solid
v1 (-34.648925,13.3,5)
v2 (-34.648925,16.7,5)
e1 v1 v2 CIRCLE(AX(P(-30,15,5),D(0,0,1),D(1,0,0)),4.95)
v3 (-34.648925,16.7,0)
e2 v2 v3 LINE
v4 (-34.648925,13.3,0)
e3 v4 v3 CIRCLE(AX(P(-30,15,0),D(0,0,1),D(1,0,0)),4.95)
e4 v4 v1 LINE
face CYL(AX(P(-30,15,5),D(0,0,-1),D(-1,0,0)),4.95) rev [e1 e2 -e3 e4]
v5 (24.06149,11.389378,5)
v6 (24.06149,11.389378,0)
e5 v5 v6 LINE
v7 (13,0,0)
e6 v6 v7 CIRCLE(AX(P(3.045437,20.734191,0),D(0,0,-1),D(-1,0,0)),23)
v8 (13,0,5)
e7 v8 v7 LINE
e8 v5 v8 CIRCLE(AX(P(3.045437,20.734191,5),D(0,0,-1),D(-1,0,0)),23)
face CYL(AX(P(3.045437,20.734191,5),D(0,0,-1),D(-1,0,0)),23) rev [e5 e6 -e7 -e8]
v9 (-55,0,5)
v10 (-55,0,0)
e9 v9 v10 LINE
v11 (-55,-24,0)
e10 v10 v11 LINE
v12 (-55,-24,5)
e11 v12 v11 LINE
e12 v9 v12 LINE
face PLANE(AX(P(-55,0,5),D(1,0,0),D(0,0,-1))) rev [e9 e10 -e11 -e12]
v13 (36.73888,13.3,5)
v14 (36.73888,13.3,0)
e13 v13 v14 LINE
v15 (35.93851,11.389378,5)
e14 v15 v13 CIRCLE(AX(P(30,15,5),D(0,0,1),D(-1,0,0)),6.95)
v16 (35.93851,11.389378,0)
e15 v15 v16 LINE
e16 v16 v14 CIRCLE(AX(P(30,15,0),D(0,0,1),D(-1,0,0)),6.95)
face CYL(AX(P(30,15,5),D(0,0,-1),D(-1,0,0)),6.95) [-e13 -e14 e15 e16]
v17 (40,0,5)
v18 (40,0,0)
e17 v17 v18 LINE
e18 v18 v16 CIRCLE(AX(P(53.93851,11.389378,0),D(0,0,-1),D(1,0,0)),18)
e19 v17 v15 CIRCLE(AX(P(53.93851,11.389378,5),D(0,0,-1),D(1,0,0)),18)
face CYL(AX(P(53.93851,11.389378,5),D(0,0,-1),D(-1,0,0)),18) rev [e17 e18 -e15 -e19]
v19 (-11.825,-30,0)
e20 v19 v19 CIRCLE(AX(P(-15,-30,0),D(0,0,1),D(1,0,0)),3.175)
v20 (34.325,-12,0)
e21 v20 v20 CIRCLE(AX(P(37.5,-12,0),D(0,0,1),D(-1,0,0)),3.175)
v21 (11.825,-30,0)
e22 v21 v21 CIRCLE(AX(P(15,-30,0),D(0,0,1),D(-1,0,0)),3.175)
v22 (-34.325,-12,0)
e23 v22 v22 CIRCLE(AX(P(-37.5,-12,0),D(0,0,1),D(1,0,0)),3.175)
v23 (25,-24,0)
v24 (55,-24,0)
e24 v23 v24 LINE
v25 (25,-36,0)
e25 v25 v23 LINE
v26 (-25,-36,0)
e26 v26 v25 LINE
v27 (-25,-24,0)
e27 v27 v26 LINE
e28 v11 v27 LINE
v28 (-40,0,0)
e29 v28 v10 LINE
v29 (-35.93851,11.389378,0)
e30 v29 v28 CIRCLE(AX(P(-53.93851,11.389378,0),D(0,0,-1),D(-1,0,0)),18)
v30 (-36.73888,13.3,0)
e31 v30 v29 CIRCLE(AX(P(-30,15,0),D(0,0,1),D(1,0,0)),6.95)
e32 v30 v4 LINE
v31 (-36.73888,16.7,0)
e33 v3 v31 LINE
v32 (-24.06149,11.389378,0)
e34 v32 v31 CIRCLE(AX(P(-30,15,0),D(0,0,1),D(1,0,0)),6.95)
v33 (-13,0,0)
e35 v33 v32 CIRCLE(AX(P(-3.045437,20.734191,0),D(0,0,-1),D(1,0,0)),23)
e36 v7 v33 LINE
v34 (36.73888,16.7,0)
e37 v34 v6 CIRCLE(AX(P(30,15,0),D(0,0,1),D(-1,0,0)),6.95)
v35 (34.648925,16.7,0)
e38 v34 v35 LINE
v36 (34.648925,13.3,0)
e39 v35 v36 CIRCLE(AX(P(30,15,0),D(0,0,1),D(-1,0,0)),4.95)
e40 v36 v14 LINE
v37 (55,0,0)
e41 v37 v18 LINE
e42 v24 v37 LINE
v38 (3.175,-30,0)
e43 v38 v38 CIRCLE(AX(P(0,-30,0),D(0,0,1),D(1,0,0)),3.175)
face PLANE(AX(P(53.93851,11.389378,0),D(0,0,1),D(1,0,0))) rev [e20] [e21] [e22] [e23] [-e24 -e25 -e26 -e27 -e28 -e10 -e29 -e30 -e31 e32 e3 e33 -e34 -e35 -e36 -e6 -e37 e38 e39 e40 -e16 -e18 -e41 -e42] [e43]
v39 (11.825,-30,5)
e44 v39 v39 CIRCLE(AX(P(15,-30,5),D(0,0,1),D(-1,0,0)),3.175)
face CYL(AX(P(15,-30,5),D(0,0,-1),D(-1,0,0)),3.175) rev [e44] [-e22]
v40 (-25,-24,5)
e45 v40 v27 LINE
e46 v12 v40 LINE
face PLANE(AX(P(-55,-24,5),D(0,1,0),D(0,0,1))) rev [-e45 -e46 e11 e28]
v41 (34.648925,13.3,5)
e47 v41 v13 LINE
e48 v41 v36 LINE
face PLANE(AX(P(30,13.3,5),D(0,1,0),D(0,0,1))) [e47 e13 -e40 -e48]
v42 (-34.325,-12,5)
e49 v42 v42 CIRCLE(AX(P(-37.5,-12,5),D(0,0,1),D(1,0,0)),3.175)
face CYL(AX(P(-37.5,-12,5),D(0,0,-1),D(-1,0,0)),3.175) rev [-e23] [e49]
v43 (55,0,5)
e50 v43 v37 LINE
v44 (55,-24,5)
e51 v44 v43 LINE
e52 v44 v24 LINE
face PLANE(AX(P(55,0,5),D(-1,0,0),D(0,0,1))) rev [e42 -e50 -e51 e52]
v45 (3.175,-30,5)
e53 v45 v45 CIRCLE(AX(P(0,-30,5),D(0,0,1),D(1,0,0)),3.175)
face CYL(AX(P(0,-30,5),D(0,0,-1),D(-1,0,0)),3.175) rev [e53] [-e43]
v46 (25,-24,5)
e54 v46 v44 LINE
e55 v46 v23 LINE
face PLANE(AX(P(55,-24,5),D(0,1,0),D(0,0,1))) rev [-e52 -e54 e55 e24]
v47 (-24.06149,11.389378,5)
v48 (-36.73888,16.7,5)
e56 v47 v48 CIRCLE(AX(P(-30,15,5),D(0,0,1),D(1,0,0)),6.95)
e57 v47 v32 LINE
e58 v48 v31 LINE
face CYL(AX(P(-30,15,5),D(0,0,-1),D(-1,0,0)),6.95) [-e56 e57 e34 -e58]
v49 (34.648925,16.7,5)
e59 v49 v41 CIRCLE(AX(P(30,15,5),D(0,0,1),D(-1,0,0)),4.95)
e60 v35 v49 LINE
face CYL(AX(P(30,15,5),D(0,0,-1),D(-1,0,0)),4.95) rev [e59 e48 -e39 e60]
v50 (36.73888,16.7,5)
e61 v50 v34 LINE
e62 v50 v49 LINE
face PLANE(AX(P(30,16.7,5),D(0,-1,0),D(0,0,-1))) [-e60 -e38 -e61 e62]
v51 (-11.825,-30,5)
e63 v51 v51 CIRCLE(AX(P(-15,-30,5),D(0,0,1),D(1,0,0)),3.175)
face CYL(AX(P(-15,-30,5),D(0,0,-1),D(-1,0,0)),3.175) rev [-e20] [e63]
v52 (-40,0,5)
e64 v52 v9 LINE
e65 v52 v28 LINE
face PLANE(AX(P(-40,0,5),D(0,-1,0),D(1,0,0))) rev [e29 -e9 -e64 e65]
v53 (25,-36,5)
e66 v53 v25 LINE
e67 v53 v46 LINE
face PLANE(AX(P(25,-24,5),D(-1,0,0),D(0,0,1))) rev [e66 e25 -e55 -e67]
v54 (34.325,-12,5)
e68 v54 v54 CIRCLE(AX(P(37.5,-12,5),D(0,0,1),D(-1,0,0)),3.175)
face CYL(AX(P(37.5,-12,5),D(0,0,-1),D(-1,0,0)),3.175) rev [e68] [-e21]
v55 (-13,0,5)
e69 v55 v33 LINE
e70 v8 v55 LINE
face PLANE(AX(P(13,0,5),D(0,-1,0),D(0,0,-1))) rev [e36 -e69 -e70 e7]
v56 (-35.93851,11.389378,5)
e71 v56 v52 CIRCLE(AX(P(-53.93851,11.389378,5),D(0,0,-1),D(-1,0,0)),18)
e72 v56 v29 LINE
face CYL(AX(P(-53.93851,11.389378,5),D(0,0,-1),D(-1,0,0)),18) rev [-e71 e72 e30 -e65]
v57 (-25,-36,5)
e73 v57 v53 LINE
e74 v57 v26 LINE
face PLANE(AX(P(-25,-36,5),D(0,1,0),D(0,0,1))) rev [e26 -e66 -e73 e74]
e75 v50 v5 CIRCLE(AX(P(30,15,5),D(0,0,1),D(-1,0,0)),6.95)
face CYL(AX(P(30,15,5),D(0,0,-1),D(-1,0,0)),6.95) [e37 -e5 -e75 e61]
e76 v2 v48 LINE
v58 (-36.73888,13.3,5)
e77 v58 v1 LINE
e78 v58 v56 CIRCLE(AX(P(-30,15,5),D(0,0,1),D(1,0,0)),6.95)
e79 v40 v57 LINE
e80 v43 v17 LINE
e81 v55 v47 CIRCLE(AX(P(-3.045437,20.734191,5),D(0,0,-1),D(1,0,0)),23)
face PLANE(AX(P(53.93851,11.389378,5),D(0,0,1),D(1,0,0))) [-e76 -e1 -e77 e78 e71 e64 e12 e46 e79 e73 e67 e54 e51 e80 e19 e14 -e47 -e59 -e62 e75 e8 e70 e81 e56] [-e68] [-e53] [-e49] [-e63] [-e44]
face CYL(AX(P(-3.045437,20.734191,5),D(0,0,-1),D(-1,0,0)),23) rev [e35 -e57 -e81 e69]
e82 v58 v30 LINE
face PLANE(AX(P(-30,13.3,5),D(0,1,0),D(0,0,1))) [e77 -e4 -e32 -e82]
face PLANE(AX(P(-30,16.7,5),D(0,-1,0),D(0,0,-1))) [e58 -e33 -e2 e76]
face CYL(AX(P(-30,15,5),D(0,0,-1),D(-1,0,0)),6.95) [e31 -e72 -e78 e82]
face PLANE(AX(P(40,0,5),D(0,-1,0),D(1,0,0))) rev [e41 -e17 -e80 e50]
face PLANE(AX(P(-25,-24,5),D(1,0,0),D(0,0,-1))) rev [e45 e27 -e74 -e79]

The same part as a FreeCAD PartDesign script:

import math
import FreeCAD as App
import Part
import Sketcher

V = App.Vector
Q = App.Units.Quantity

doc = App.newDocument("Part")
body = doc.addObject("PartDesign::Body", "Body")

sketch1 = body.newObject("Sketcher::SketchObject", "Sketch")
sketch1.AttachmentSupport = (doc.getObject("XY_Plane"), [""])
sketch1.MapMode = "FlatFace"
sketch1.addGeometry([
    Part.LineSegment(V(13, 0, 0), V(-13, 0, 0)),
    Part.ArcOfCircle(Part.Circle(V(-3, 20.7, 0), V(0, 0, 1), 23), math.radians(-156), math.radians(-116)),
    Part.ArcOfCircle(Part.Circle(V(-30, 15, 0), V(0, 0, 1), 7), math.radians(-31), math.radians(211)),
    Part.ArcOfCircle(Part.Circle(V(-53.9, 11.4, 0), V(0, 0, 1), 18), math.radians(-39), math.radians(0)),
    Part.LineSegment(V(-40, 0, 0), V(-55, 0, 0)),
    Part.LineSegment(V(-55, 0, 0), V(-55, -24, 0)),
    Part.LineSegment(V(-55, -24, 0), V(-25, -24, 0)),
    Part.LineSegment(V(-25, -24, 0), V(-25, -36, 0)),
    Part.LineSegment(V(-25, -36, 0), V(25, -36, 0)),
    Part.LineSegment(V(25, -36, 0), V(25, -24, 0)),
    Part.LineSegment(V(25, -24, 0), V(55, -24, 0)),
    Part.LineSegment(V(55, -24, 0), V(55, 0, 0)),
    Part.LineSegment(V(55, 0, 0), V(40, 0, 0)),
    Part.ArcOfCircle(Part.Circle(V(53.9, 11.4, 0), V(0, 0, 1), 18), math.radians(180), math.radians(219)),
    Part.ArcOfCircle(Part.Circle(V(30, 15, 0), V(0, 0, 1), 7), math.radians(-31), math.radians(211)),
    Part.ArcOfCircle(Part.Circle(V(3, 20.7, 0), V(0, 0, 1), 23), math.radians(-64), math.radians(-24)),
    Part.Circle(V(-15, -30, 0), V(0, 0, 1), 3.2),
    Part.Circle(V(-37.5, -12, 0), V(0, 0, 1), 3.2),
    Part.Circle(V(0, -30, 0), V(0, 0, 1), 3.2),
    Part.Circle(V(15, -30, 0), V(0, 0, 1), 3.2),
    Part.Circle(V(37.5, -12, 0), V(0, 0, 1), 3.2),
    Part.Circle(V(-30, 15, 0), V(0, 0, 1), 5),
    Part.Circle(V(30, 15, 0), V(0, 0, 1), 5),
], False)
sketch1.addConstraint([
    Sketcher.Constraint("Coincident", 0, 2, 1, 2),
    Sketcher.Constraint("Coincident", 1, 1, 2, 1),
    Sketcher.Constraint("Coincident", 2, 2, 3, 2),
    Sketcher.Constraint("Coincident", 3, 1, 4, 1),
    Sketcher.Constraint("Coincident", 4, 2, 5, 1),
    Sketcher.Constraint("Coincident", 5, 2, 6, 1),
    Sketcher.Constraint("Coincident", 6, 2, 7, 1),
    Sketcher.Constraint("Coincident", 7, 2, 8, 1),
    Sketcher.Constraint("Coincident", 8, 2, 9, 1),
    Sketcher.Constraint("Coincident", 9, 2, 10, 1),
    Sketcher.Constraint("Coincident", 10, 2, 11, 1),
    Sketcher.Constraint("Coincident", 11, 2, 12, 1),
    Sketcher.Constraint("Coincident", 12, 2, 13, 2),
    Sketcher.Constraint("Coincident", 13, 1, 14, 1),
    Sketcher.Constraint("Coincident", 14, 2, 15, 2),
    Sketcher.Constraint("Coincident", 15, 1, 0, 1),
    Sketcher.Constraint("Horizontal", 0),
    Sketcher.Constraint("Horizontal", 4),
    Sketcher.Constraint("Vertical", 5),
    Sketcher.Constraint("Horizontal", 6),
    Sketcher.Constraint("Vertical", 7),
    Sketcher.Constraint("Horizontal", 8),
    Sketcher.Constraint("Vertical", 9),
    Sketcher.Constraint("Horizontal", 10),
    Sketcher.Constraint("Vertical", 11),
    Sketcher.Constraint("Horizontal", 12),
    Sketcher.Constraint("Coincident", 21, 3, 2, 3),
    Sketcher.Constraint("Coincident", 22, 3, 14, 3),
    Sketcher.Constraint("Equal", 3, 13),
    Sketcher.Constraint("Equal", 2, 14),
    Sketcher.Constraint("Equal", 1, 15),
    Sketcher.Constraint("Equal", 16, 17),
    Sketcher.Constraint("Equal", 17, 18),
    Sketcher.Constraint("Equal", 18, 19),
    Sketcher.Constraint("Equal", 19, 20),
    Sketcher.Constraint("Equal", 21, 22),
    Sketcher.Constraint("Symmetric", 4, 2, 11, 2, -1, 1),
    Sketcher.Constraint("Symmetric", 0, 2, 15, 1, -1, 1),
    Sketcher.Constraint("Symmetric", 3, 3, 13, 3, -2),
    Sketcher.Constraint("Symmetric", 2, 3, 14, 3, -2),
    Sketcher.Constraint("Symmetric", 16, 3, 19, 3, -2),
    Sketcher.Constraint("Symmetric", 17, 3, 20, 3, -2),
    Sketcher.Constraint("Symmetric", 6, 2, 9, 2, -2),
    Sketcher.Constraint("PointOnObject", 18, 3, -2),
    Sketcher.Constraint("PointOnObject", 3, 1, -1),
    Sketcher.Constraint("Horizontal", 1, 3, 15, 3),
    Sketcher.Constraint("Horizontal", 16, 3, 18, 3),
    Sketcher.Constraint("Horizontal", 13, 3, 1, 1),
    Sketcher.Constraint("Horizontal", 1, 1, 2, 2),
    Sketcher.Constraint("Radius", 1, Q("23 mm")),
    Sketcher.Constraint("Radius", 3, Q("18 mm")),
    Sketcher.Constraint("Diameter", 21, Q("9.9 mm")),
    Sketcher.Constraint("Diameter", 16, Q("6.35 mm")),
    Sketcher.Constraint("DistanceX", 0, 2, 0, 1, Q("26 mm")),
    Sketcher.Constraint("DistanceX", 4, 2, 4, 1, Q("15 mm")),
    Sketcher.Constraint("DistanceX", 6, 1, 6, 2, Q("30 mm")),
    Sketcher.Constraint("DistanceX", 8, 1, 8, 2, Q("50 mm")),
    Sketcher.Constraint("DistanceY", 5, 2, 5, 1, Q("24 mm")),
    Sketcher.Constraint("DistanceY", 7, 2, 7, 1, Q("12 mm")),
    Sketcher.Constraint("Radius", 2, Q("6.95 mm")),
    Sketcher.Constraint("DistanceX", 2, 3, -1, 1, Q("30 mm")),
    Sketcher.Constraint("DistanceY", -1, 1, 2, 3, Q("15 mm")),
    Sketcher.Constraint("DistanceX", 16, 3, -1, 1, Q("15 mm")),
    Sketcher.Constraint("DistanceY", 16, 3, -1, 1, Q("30 mm")),
    Sketcher.Constraint("DistanceY", 17, 3, -1, 1, Q("12 mm")),
    Sketcher.Constraint("DistanceX", 17, 3, -1, 1, Q("37.5 mm")),
])
pad1 = body.newObject("PartDesign::Pad", "Pad")
pad1.Profile = sketch1
pad1.Length = 5

sketch2 = body.newObject("Sketcher::SketchObject", "Sketch001")
sketch2.AttachmentSupport = (doc.getObject("XY_Plane"), [""])
sketch2.MapMode = "FlatFace"
sketch2.addGeometry([
    Part.LineSegment(V(-30, 16.7, 0), V(-36.7, 16.7, 0)),
    Part.ArcOfCircle(Part.Circle(V(-30, 15, 0), V(0, 0, 1), 7), math.radians(166), math.radians(194)),
    Part.LineSegment(V(-36.7, 13.3, 0), V(-30, 13.3, 0)),
    Part.LineSegment(V(-30, 13.3, 0), V(-30, 16.7, 0)),
    Part.LineSegment(V(30, 16.7, 0), V(30, 13.3, 0)),
    Part.LineSegment(V(30, 13.3, 0), V(36.7, 13.3, 0)),
    Part.ArcOfCircle(Part.Circle(V(30, 15, 0), V(0, 0, 1), 7), math.radians(-14), math.radians(14)),
    Part.LineSegment(V(36.7, 16.7, 0), V(30, 16.7, 0)),
], False)
sketch2.addConstraint([
    Sketcher.Constraint("Coincident", 0, 2, 1, 1),
    Sketcher.Constraint("Coincident", 1, 2, 2, 1),
    Sketcher.Constraint("Coincident", 2, 2, 3, 1),
    Sketcher.Constraint("Coincident", 3, 2, 0, 1),
    Sketcher.Constraint("Coincident", 4, 2, 5, 1),
    Sketcher.Constraint("Coincident", 5, 2, 6, 1),
    Sketcher.Constraint("Coincident", 6, 2, 7, 1),
    Sketcher.Constraint("Coincident", 7, 2, 4, 1),
    Sketcher.Constraint("Horizontal", 0),
    Sketcher.Constraint("Horizontal", 2),
    Sketcher.Constraint("Vertical", 3),
    Sketcher.Constraint("Vertical", 4),
    Sketcher.Constraint("Horizontal", 5),
    Sketcher.Constraint("Horizontal", 7),
    Sketcher.Constraint("Equal", 1, 6),
    Sketcher.Constraint("Symmetric", 1, 3, 6, 3, -2),
    Sketcher.Constraint("Symmetric", 2, 2, 4, 2, -2),
    Sketcher.Constraint("Horizontal", 3, 2, 6, 2),
    Sketcher.Constraint("Vertical", 0, 2, 1, 2),
    Sketcher.Constraint("Vertical", 1, 3, 2, 2),
    Sketcher.Constraint("Radius", 1, Q("6.95 mm")),
    Sketcher.Constraint("DistanceY", 3, 1, 3, 2, Q("3.4 mm")),
    Sketcher.Constraint("DistanceX", 1, 3, -1, 1, Q("30 mm")),
    Sketcher.Constraint("DistanceY", -1, 1, 1, 3, Q("15 mm")),
])
pocket1 = body.newObject("PartDesign::Pocket", "Pocket")
pocket1.Profile = sketch2
pocket1.Type = "ThroughAll"
pocket1.Reversed = True

doc.recompute()
